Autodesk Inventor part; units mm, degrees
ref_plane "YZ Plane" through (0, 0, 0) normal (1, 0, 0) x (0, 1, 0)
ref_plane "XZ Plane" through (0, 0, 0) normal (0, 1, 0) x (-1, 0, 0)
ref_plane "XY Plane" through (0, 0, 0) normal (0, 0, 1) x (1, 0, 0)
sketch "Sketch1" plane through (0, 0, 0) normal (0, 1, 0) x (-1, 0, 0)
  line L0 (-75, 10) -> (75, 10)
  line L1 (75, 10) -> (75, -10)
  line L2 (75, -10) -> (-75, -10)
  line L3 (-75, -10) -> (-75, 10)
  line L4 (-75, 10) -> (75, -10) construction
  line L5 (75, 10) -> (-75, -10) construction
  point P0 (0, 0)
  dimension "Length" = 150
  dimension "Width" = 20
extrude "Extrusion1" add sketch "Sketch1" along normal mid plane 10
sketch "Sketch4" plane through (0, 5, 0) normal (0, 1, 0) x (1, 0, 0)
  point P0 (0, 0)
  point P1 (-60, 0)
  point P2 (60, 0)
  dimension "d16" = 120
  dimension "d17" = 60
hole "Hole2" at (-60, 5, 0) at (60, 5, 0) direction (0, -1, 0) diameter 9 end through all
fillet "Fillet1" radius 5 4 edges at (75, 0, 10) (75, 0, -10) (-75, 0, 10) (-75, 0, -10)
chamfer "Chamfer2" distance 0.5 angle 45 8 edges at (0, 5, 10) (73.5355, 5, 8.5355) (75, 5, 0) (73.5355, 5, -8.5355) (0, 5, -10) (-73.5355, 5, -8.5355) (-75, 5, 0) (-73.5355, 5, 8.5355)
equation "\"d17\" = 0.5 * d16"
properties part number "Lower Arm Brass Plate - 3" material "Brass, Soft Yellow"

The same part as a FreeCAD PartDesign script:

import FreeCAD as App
import Part
import Sketcher
from FreeCAD import Vector
Q = App.Units.Quantity


def edges_at(feature, points):
    """Names of the edges that pass closest to the given points."""
    edges = feature.Shape.Edges
    near = lambda p: min(range(len(edges)), key=lambda i: edges[i].distToShape(Part.Vertex(*p))[0])
    return sorted({f"Edge{near(p) + 1}" for p in points})

doc = App.newDocument("Part")
body = doc.addObject("PartDesign::Body", "Body")

# Sketch on XZ plane
sketch1 = doc.addObject("Sketcher::SketchObject", "Sketch")
body.addObject(sketch1)
sketch1.AttachmentSupport = (doc.XZ_Plane, [""])
sketch1.MapMode = "FlatFace"
sketch1.addGeometry([
    Part.LineSegment(Vector(-75, 10, 0), Vector(75, 10, 0)),
    Part.LineSegment(Vector(75, 10, 0), Vector(75, -10, 0)),
    Part.LineSegment(Vector(75, -10, 0), Vector(-75, -10, 0)),
    Part.LineSegment(Vector(-75, -10, 0), Vector(-75, 10, 0)),
], False)
sketch1.addConstraint([
    Sketcher.Constraint("Coincident", 0, 2, 1, 1),
    Sketcher.Constraint("Coincident", 1, 2, 2, 1),
    Sketcher.Constraint("Coincident", 2, 2, 3, 1),
    Sketcher.Constraint("Coincident", 3, 2, 0, 1),
    Sketcher.Constraint("Horizontal", 0),
    Sketcher.Constraint("Vertical", 1),
    Sketcher.Constraint("Horizontal", 2),
    Sketcher.Constraint("Vertical", 3),
    Sketcher.Constraint("Symmetric", 0, 2, 2, 2, -1, 1),
    Sketcher.Constraint("DistanceX", 0, 1, 0, 2, Q("150 mm")),
    Sketcher.Constraint("DistanceY", 1, 2, 1, 1, Q("20 mm")),
])
pad1 = doc.addObject("PartDesign::Pad", "Pad")
body.addObject(pad1)
pad1.Profile = sketch1
pad1.Length = 10
pad1.Midplane = True

# Sketch on XZ plane
sketch2 = doc.addObject("Sketcher::SketchObject", "Sketch001")
body.addObject(sketch2)
sketch2.AttachmentSupport = (doc.XZ_Plane, [""])
sketch2.MapMode = "FlatFace"
sketch2.AttachmentOffset = App.Placement(Vector(0, 0, -5), App.Rotation())
sketch2.addGeometry([
    Part.Circle(Vector(-60, 0, 0), Vector(0, 0, 1), 4.5),
    Part.Circle(Vector(60, 0, 0), Vector(0, 0, 1), 4.5),
], False)
sketch2.addConstraint([
    Sketcher.Constraint("Equal", 0, 1),
    Sketcher.Constraint("Symmetric", 0, 3, 1, 3, -1, 1),
    Sketcher.Constraint("PointOnObject", 0, 3, -1),
    Sketcher.Constraint("Diameter", 0, Q("9 mm")),
    Sketcher.Constraint("DistanceX", 0, 3, -1, 1, Q("60 mm")),
])
doc.recompute()
hole = doc.addObject("PartDesign::Hole", "Hole")
body.addObject(hole)
hole.Profile = sketch2
hole.ThreadType = "None"
hole.Diameter = 9
hole.DepthType = "ThroughAll"
hole.Reversed = True
doc.recompute()

fillet = doc.addObject("PartDesign::Fillet", "Fillet")
body.addObject(fillet)
fillet.Base = (hole, edges_at(hole, [
    (75, 0, 10),
    (75, 0, -10),
    (-75, 0, 10),
    (-75, 0, -10),
]))
fillet.Radius = 5
doc.recompute()

chamfer = doc.addObject("PartDesign::Chamfer", "Chamfer")
body.addObject(chamfer)
chamfer.Base = (fillet, edges_at(fillet, [
    (0, 5, 10),
    (73.535, 5, 8.536),
    (75, 5, 0),
    (73.535, 5, -8.536),
    (0, 5, -10),
    (-73.535, 5, -8.536),
    (-75, 5, 0),
    (-73.535, 5, 8.536),
]))
chamfer.Size = 0.5

doc.recompute()
